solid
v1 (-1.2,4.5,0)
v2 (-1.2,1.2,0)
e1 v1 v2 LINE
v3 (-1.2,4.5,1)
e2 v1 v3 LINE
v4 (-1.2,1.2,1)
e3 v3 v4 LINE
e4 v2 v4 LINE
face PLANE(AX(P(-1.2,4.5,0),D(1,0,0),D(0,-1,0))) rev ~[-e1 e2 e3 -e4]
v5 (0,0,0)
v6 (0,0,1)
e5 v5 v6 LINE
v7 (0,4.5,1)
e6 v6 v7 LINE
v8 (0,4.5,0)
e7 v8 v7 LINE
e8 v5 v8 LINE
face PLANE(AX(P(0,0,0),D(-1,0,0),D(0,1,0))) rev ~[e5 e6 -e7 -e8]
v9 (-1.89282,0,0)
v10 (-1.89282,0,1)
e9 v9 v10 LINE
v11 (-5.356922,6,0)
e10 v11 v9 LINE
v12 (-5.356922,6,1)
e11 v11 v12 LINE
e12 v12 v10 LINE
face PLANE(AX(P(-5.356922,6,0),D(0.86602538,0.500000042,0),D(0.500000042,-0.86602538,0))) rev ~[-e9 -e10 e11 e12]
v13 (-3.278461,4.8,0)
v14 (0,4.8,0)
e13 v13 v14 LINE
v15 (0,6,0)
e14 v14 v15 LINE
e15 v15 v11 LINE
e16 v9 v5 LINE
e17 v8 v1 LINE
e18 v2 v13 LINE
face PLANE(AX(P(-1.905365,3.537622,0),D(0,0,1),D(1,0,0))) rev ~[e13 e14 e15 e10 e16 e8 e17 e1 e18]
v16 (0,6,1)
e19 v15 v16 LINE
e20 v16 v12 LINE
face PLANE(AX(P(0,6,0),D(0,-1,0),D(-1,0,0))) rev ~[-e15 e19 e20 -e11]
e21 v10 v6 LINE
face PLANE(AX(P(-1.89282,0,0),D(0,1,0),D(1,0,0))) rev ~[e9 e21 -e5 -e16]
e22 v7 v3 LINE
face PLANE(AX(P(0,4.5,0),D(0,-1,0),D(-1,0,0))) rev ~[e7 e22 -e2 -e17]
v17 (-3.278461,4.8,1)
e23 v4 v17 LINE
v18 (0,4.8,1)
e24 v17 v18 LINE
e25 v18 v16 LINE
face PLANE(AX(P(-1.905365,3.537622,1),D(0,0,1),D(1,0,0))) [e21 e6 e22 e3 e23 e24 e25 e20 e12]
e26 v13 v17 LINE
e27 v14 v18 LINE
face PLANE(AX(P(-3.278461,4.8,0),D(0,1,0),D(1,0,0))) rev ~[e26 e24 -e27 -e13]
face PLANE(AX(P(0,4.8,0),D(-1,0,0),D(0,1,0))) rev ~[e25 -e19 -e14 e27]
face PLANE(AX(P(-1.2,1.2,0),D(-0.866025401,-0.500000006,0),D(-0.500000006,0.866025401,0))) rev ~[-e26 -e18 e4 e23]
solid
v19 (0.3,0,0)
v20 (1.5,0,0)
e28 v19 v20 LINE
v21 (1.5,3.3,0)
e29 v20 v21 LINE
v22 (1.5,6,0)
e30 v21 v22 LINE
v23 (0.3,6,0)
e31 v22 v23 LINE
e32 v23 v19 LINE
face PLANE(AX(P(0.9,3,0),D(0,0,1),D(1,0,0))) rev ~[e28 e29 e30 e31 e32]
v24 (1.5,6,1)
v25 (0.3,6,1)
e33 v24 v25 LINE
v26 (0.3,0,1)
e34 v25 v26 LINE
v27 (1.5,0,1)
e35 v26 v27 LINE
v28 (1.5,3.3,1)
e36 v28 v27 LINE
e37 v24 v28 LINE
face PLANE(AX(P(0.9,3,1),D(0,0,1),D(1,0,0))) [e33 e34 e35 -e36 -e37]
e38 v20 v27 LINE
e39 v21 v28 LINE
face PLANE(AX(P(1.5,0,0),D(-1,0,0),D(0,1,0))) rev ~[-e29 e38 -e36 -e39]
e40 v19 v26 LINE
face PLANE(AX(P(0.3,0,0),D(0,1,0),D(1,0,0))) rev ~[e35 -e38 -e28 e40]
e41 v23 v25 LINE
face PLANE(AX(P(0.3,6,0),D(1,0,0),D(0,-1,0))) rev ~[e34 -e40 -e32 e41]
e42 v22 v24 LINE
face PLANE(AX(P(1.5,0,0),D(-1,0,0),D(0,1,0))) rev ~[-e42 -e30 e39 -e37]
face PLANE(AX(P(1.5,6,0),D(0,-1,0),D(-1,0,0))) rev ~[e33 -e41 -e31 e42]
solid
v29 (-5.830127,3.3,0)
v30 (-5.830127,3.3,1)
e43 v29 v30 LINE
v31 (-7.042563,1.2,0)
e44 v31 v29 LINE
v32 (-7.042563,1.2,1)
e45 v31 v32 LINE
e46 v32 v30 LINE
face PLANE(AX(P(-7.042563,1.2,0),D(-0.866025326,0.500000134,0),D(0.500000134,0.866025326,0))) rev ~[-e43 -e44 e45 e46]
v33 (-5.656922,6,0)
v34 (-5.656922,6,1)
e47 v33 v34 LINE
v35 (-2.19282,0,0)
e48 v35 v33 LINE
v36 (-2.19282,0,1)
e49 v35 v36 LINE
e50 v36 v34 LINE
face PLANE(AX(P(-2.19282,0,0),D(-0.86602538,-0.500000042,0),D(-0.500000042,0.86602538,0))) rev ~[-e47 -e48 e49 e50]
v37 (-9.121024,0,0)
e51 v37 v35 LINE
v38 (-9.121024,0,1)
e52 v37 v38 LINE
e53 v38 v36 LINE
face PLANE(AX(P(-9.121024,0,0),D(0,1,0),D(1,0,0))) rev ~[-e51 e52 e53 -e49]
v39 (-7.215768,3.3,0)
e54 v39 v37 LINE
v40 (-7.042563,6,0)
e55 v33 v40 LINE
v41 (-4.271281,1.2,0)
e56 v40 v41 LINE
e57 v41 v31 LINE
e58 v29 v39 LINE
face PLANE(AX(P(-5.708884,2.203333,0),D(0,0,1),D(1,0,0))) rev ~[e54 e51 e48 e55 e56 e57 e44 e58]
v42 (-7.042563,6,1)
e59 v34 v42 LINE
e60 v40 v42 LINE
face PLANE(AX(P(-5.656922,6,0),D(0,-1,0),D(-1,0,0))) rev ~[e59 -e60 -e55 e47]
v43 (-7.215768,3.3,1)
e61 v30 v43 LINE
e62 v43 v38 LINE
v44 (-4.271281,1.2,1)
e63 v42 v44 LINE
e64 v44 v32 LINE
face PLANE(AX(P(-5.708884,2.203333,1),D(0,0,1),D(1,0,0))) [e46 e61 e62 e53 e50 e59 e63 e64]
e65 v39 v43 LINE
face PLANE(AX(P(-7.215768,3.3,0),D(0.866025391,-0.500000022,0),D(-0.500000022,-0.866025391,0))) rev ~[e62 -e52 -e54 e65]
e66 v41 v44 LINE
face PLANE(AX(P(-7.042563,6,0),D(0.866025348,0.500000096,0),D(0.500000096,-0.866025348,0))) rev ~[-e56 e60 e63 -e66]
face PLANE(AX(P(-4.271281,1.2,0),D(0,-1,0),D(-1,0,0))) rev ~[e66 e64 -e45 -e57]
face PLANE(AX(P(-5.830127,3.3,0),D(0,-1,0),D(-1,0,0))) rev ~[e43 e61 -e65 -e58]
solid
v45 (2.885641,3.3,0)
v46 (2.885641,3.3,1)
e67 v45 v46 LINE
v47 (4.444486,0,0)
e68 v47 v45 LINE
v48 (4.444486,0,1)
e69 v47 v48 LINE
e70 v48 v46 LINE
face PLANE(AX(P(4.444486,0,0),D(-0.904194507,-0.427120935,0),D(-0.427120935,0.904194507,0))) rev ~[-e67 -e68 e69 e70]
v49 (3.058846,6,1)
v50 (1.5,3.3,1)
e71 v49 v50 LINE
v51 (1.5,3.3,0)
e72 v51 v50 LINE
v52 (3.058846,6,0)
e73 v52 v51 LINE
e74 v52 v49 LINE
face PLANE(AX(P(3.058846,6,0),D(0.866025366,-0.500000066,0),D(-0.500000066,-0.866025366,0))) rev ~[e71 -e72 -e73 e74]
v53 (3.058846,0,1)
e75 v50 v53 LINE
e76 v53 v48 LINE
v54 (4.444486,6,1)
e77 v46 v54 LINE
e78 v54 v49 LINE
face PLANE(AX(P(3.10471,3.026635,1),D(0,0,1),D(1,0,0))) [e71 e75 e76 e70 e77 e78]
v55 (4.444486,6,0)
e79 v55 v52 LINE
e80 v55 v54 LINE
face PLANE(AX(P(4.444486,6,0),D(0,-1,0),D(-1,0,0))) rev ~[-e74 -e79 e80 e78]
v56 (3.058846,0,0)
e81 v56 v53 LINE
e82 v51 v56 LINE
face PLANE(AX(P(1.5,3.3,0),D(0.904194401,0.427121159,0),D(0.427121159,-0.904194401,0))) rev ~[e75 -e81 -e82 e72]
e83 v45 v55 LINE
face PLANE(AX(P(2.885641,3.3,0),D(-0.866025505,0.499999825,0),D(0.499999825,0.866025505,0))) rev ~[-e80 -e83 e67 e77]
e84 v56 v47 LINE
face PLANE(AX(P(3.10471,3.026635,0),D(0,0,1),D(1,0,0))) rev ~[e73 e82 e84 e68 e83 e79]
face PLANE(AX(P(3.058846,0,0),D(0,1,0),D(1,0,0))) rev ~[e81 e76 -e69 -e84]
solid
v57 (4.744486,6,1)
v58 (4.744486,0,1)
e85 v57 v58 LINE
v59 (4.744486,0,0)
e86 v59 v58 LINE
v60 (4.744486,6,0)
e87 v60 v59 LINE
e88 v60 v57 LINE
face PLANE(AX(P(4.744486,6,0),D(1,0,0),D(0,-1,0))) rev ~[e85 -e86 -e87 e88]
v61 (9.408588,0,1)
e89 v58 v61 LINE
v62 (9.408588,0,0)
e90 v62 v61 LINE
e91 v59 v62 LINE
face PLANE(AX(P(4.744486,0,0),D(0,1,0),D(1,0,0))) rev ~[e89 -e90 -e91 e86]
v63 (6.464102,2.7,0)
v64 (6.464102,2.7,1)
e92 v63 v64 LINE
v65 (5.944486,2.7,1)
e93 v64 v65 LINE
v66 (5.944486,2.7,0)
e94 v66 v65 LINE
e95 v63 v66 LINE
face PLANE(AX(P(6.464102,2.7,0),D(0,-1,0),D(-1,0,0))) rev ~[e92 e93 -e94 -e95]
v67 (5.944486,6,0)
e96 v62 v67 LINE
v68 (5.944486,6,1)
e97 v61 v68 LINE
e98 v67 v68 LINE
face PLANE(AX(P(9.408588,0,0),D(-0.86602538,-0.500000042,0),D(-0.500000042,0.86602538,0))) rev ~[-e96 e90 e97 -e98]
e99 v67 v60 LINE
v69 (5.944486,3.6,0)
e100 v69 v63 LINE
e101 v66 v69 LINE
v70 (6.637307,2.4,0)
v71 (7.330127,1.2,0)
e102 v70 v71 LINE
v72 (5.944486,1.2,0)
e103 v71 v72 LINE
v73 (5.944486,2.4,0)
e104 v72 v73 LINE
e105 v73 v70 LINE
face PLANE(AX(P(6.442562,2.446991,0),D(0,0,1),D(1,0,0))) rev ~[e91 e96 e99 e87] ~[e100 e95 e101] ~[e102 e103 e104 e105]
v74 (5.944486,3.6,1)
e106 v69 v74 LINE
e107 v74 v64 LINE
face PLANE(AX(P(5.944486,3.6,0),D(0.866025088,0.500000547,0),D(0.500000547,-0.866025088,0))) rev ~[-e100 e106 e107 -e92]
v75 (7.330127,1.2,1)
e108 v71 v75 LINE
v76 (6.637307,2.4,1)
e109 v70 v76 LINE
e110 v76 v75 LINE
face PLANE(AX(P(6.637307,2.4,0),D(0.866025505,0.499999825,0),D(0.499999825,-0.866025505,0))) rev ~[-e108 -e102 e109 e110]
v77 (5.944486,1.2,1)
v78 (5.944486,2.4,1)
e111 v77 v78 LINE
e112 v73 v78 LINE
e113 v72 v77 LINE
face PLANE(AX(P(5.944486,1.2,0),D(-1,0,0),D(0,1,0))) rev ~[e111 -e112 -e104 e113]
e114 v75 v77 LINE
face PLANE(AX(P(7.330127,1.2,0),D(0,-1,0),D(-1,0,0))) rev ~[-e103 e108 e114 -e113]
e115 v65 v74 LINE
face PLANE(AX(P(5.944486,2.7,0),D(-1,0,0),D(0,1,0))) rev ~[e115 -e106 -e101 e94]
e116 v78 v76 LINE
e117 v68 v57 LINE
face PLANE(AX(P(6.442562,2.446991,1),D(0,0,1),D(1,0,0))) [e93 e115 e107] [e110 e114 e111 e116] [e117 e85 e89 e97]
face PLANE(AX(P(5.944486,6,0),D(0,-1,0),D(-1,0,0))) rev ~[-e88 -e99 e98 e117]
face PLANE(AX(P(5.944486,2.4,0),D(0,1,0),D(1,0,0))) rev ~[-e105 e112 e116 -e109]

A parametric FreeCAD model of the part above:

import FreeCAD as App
import Part
import Sketcher

V = App.Vector
Q = App.Units.Quantity

doc = App.newDocument("Part")
body = doc.addObject("PartDesign::Body", "Body")
body.AllowCompound = True

# Sketch on XY plane
sketch1 = body.newObject("Sketcher::SketchObject", "Sketch")
sketch1.AttachmentSupport = (doc.getObject("XY_Plane"), [""])
sketch1.MapMode = "FlatFace"
sketch1.addGeometry([
    Part.LineSegment(V(-5.7, 6, 0), V(-7, 6, 0)),  # 0
    Part.LineSegment(V(-7, 6, 0), V(-4.3, 1.2, 0)),  # 1
    Part.LineSegment(V(-4.3, 1.2, 0), V(-7, 1.2, 0)),  # 2
    Part.LineSegment(V(-7, 1.2, 0), V(-5.8, 3.3, 0)),  # 3
    Part.LineSegment(V(-5.8, 3.3, 0), V(-7.2, 3.3, 0)),  # 4
    Part.LineSegment(V(-7.2, 3.3, 0), V(-9.1, 0, 0)),  # 5
    Part.LineSegment(V(-9.1, 0, 0), V(-2.2, 0, 0)),  # 6
    Part.LineSegment(V(-2.2, 0, 0), V(-5.7, 6, 0)),  # 7
    Part.LineSegment(V(0, 6, 0), V(-5.4, 6, 0)),  # 8
    Part.LineSegment(V(-5.4, 6, 0), V(-1.9, 0, 0)),  # 9
    Part.LineSegment(V(-1.9, 0, 0), V(0, 0, 0)),  # 10
    Part.LineSegment(V(0, 0, 0), V(0, 4.5, 0)),  # 11
    Part.LineSegment(V(0, 4.5, 0), V(-1.2, 4.5, 0)),  # 12
    Part.LineSegment(V(-1.2, 4.5, 0), V(-1.2, 1.2, 0)),  # 13
    Part.LineSegment(V(-1.2, 1.2, 0), V(-3.3, 4.8, 0)),  # 14
    Part.LineSegment(V(-3.3, 4.8, 0), V(0, 4.8, 0)),  # 15
    Part.LineSegment(V(0, 4.8, 0), V(0, 6, 0)),  # 16
    Part.LineSegment(V(1.5, 6, 0), V(0.3, 6, 0)),  # 17
    Part.LineSegment(V(0.3, 6, 0), V(0.3, 0, 0)),  # 18
    Part.LineSegment(V(0.3, 0, 0), V(1.5, 0, 0)),  # 19
    Part.LineSegment(V(1.5, 0, 0), V(1.5, 3.3, 0)),  # 20
    Part.LineSegment(V(1.5, 3.3, 0), V(1.5, 6, 0)),  # 21
    Part.LineSegment(V(3.1, 6, 0), V(1.5, 3.3, 0)),  # 22
    Part.LineSegment(V(1.5, 3.3, 0), V(3.1, 0, 0)),  # 23
    Part.LineSegment(V(3.1, 0, 0), V(4.4, 0, 0)),  # 24
    Part.LineSegment(V(4.4, 0, 0), V(2.9, 3.3, 0)),  # 25
    Part.LineSegment(V(2.9, 3.3, 0), V(4.4, 6, 0)),  # 26
    Part.LineSegment(V(4.4, 6, 0), V(3.1, 6, 0)),  # 27
    Part.LineSegment(V(5.9, 6, 0), V(4.7, 6, 0)),  # 28
    Part.LineSegment(V(4.7, 6, 0), V(4.7, 0, 0)),  # 29
    Part.LineSegment(V(4.7, 0, 0), V(9.4, 0, 0)),  # 30
    Part.LineSegment(V(9.4, 0, 0), V(5.9, 6, 0)),  # 31
    Part.LineSegment(V(7.3, 1.2, 0), V(5.9, 1.2, 0)),  # 32
    Part.LineSegment(V(5.9, 1.2, 0), V(5.9, 2.4, 0)),  # 33
    Part.LineSegment(V(5.9, 2.4, 0), V(6.6, 2.4, 0)),  # 34
    Part.LineSegment(V(6.6, 2.4, 0), V(7.3, 1.2, 0)),  # 35
    Part.LineSegment(V(6.5, 2.7, 0), V(5.9, 2.7, 0)),  # 36
    Part.LineSegment(V(5.9, 2.7, 0), V(5.9, 3.6, 0)),  # 37
    Part.LineSegment(V(5.9, 3.6, 0), V(6.5, 2.7, 0)),  # 38
], False)
sketch1.addConstraint([
    Sketcher.Constraint("Coincident", 0, 2, 1, 1),
    Sketcher.Constraint("Coincident", 1, 2, 2, 1),
    Sketcher.Constraint("Coincident", 2, 2, 3, 1),
    Sketcher.Constraint("Coincident", 3, 2, 4, 1),
    Sketcher.Constraint("Coincident", 4, 2, 5, 1),
    Sketcher.Constraint("Coincident", 5, 2, 6, 1),
    Sketcher.Constraint("Coincident", 6, 2, 7, 1),
    Sketcher.Constraint("Coincident", 7, 2, 0, 1),
    Sketcher.Constraint("Coincident", 8, 2, 9, 1),
    Sketcher.Constraint("Coincident", 9, 2, 10, 1),
    Sketcher.Constraint("Coincident", 10, 2, 11, 1),
    Sketcher.Constraint("Coincident", 11, 2, 12, 1),
    Sketcher.Constraint("Coincident", 12, 2, 13, 1),
    Sketcher.Constraint("Coincident", 13, 2, 14, 1),
    Sketcher.Constraint("Coincident", 14, 2, 15, 1),
    Sketcher.Constraint("Coincident", 15, 2, 16, 1),
    Sketcher.Constraint("Coincident", 16, 2, 8, 1),
    Sketcher.Constraint("Coincident", 17, 2, 18, 1),
    Sketcher.Constraint("Coincident", 18, 2, 19, 1),
    Sketcher.Constraint("Coincident", 19, 2, 20, 1),
    Sketcher.Constraint("Coincident", 20, 2, 21, 1),
    Sketcher.Constraint("Coincident", 21, 2, 17, 1),
    Sketcher.Constraint("Coincident", 22, 2, 23, 1),
    Sketcher.Constraint("Coincident", 23, 2, 24, 1),
    Sketcher.Constraint("Coincident", 24, 2, 25, 1),
    Sketcher.Constraint("Coincident", 25, 2, 26, 1),
    Sketcher.Constraint("Coincident", 26, 2, 27, 1),
    Sketcher.Constraint("Coincident", 27, 2, 22, 1),
    Sketcher.Constraint("Coincident", 28, 2, 29, 1),
    Sketcher.Constraint("Coincident", 29, 2, 30, 1),
    Sketcher.Constraint("Coincident", 30, 2, 31, 1),
    Sketcher.Constraint("Coincident", 31, 2, 28, 1),
    Sketcher.Constraint("Coincident", 32, 2, 33, 1),
    Sketcher.Constraint("Coincident", 33, 2, 34, 1),
    Sketcher.Constraint("Coincident", 34, 2, 35, 1),
    Sketcher.Constraint("Coincident", 35, 2, 32, 1),
    Sketcher.Constraint("Coincident", 36, 2, 37, 1),
    Sketcher.Constraint("Coincident", 37, 2, 38, 1),
    Sketcher.Constraint("Coincident", 38, 2, 36, 1),
    Sketcher.Constraint("Horizontal", 0),
    Sketcher.Constraint("Horizontal", 2),
    Sketcher.Constraint("Horizontal", 4),
    Sketcher.Constraint("Horizontal", 6),
    Sketcher.Constraint("Horizontal", 8),
    Sketcher.Constraint("Horizontal", 10),
    Sketcher.Constraint("Vertical", 11),
    Sketcher.Constraint("Horizontal", 12),
    Sketcher.Constraint("Vertical", 13),
    Sketcher.Constraint("Horizontal", 15),
    Sketcher.Constraint("Vertical", 16),
    Sketcher.Constraint("Horizontal", 17),
    Sketcher.Constraint("Vertical", 18),
    Sketcher.Constraint("Horizontal", 19),
    Sketcher.Constraint("Vertical", 20),
    Sketcher.Constraint("Vertical", 21),
    Sketcher.Constraint("Horizontal", 24),
    Sketcher.Constraint("Horizontal", 27),
    Sketcher.Constraint("Horizontal", 28),
    Sketcher.Constraint("Vertical", 29),
    Sketcher.Constraint("Horizontal", 30),
    Sketcher.Constraint("Horizontal", 32),
    Sketcher.Constraint("Vertical", 33),
    Sketcher.Constraint("Horizontal", 34),
    Sketcher.Constraint("Horizontal", 36),
    Sketcher.Constraint("Vertical", 37),
    Sketcher.Constraint("Coincident", 10, 2, -1, 1),
    Sketcher.Constraint("Coincident", 22, 2, 20, 2),
    Sketcher.Constraint("PointOnObject", 5, 2, -1),
    Sketcher.Constraint("PointOnObject", 15, 2, -2),
    Sketcher.Constraint("PointOnObject", 18, 2, -1),
    Sketcher.Constraint("PointOnObject", 23, 2, -1),
    Sketcher.Constraint("PointOnObject", 29, 2, -1),
    Sketcher.Constraint("Parallel", 3, 5),
    Sketcher.Constraint("Parallel", 1, 7),
    Sketcher.Constraint("Parallel", 7, 9),
    Sketcher.Constraint("Parallel", 9, 14),
    Sketcher.Constraint("Parallel", 5, 22),
    Sketcher.Constraint("Parallel", 23, 25),
    Sketcher.Constraint("Parallel", 22, 26),
    Sketcher.Constraint("Parallel", 14, 31),
    Sketcher.Constraint("Parallel", 31, 35),
    Sketcher.Constraint("Parallel", 35, 38),
    Sketcher.Constraint("Horizontal", 7, 2, 8, 2),
    Sketcher.Constraint("Horizontal", 2, 2, 13, 2),
    Sketcher.Constraint("Horizontal", 16, 2, 17, 2),
    Sketcher.Constraint("Horizontal", 4, 2, 20, 2),
    Sketcher.Constraint("Horizontal", 22, 2, 25, 2),
    Sketcher.Constraint("Horizontal", 21, 2, 26, 2),
    Sketcher.Constraint("Horizontal", 27, 2, 28, 2),
    Sketcher.Constraint("Horizontal", 13, 2, 32, 2),
    Sketcher.Constraint("Vertical", 0, 2, 2, 2),
    Sketcher.Constraint("Vertical", 24, 2, 26, 2),
    Sketcher.Constraint("Vertical", 31, 2, 32, 2),
    Sketcher.Constraint("Vertical", 33, 2, 36, 2),
    Sketcher.Constraint("Equal", 0, 4),
    Sketcher.Constraint("Equal", 12, 17),
    Sketcher.Constraint("Equal", 4, 24),
    Sketcher.Constraint("Equal", 19, 28),
    Sketcher.Constraint("Equal", 27, 32),
    Sketcher.Constraint("Equal", 28, 16),
    Sketcher.Constraint("Equal", 13, 20),
    Sketcher.Constraint("Equal", 16, 33),
    Sketcher.Constraint("DistanceY", 18, 2, 18, 1, 6.0),
    Sketcher.Constraint("Angle", 1, Q("-59.999994 deg")),
    Sketcher.Constraint("Angle", 3, Q("59.999991 deg")),
    Sketcher.Constraint("DistanceX", 12, 2, 12, 1, 1.2),
    Sketcher.Constraint("DistanceY", 11, 1, 11, 2, 4.5),
    Sketcher.Constraint("DistanceY", 13, 2, 13, 1, 3.3),
    Sketcher.Constraint("DistanceY", 37, 1, 37, 2, 0.9),
    Sketcher.Constraint("DistanceX", -1, 1, 17, 2, 0.3),
    Sketcher.Constraint("DistanceY", -1, 1, 36, 2, 2.7),
    Sketcher.Constraint("DistanceX", 7, 2, 8, 2, 0.3),
    Sketcher.Constraint("DistanceX", 26, 2, 28, 2, 0.3),
    Sketcher.Constraint("DistanceX", 0, 2, 0, 1, 1.385641),
    Sketcher.Constraint("DistanceX", 10, 1, 10, 2, 1.89282),
])
pad1 = body.newObject("PartDesign::Pad", "Pad")
pad1.Profile = sketch1
pad1.Length = 1

doc.recompute()
